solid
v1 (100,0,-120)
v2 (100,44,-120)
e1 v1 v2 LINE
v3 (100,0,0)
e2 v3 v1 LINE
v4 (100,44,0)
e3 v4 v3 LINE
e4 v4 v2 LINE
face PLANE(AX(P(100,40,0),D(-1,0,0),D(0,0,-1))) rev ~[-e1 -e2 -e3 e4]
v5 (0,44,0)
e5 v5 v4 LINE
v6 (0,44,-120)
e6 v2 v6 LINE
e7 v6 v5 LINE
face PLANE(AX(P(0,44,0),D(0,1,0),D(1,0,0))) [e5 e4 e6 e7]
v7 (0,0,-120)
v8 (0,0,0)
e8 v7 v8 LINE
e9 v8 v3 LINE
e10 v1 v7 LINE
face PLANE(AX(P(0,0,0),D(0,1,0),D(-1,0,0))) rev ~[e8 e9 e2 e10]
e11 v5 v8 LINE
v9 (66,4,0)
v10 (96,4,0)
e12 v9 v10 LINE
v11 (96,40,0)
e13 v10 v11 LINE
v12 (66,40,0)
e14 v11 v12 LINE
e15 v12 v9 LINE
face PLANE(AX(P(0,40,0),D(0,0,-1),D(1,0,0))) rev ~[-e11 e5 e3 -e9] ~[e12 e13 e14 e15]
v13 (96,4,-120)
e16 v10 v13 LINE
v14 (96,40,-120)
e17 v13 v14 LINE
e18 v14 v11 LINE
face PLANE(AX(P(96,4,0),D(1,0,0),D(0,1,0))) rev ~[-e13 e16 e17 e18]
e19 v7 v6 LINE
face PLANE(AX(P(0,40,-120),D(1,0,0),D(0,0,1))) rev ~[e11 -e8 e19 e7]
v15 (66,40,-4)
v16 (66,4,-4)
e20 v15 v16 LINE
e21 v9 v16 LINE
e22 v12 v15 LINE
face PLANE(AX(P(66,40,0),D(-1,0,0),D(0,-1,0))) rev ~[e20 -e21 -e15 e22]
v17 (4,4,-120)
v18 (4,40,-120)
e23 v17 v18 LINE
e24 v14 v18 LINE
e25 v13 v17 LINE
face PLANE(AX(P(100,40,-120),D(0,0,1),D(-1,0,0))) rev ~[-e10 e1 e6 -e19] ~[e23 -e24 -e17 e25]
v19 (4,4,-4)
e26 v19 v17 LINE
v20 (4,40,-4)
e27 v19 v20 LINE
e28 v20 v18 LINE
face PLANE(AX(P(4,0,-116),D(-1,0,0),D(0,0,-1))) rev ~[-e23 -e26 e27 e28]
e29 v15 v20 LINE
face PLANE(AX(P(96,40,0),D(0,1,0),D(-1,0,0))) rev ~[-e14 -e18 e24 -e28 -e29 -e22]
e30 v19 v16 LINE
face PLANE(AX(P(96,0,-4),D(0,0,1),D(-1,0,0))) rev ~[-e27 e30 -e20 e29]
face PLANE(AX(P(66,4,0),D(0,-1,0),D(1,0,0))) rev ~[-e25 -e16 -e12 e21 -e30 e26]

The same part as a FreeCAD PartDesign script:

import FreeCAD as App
import Part
import Sketcher
Q = App.Units.Quantity

doc = App.newDocument("Part")
body = doc.addObject("PartDesign::Body", "Body")

# Sketch on XZ plane
sketch1 = doc.addObject("Sketcher::SketchObject", "Sketch")
body.addObject(sketch1)
sketch1.AttachmentSupport = (doc.XZ_Plane, [""])
sketch1.MapMode = "FlatFace"
sketch1.addGeometry(Part.LineSegment(App.Vector(0, -120, 0), App.Vector(0, 0, 0)), False)
sketch1.addGeometry(Part.LineSegment(App.Vector(0, 0, 0), App.Vector(100, 0, 0)), False)
sketch1.addGeometry(Part.LineSegment(App.Vector(100, 0, 0), App.Vector(100, -120, 0)), False)
sketch1.addGeometry(Part.LineSegment(App.Vector(100, -120, 0), App.Vector(0, -120, 0)), False)
sketch1.addConstraint(Sketcher.Constraint("Coincident", 0, 2, 1, 1))
sketch1.addConstraint(Sketcher.Constraint("Coincident", 1, 2, 2, 1))
sketch1.addConstraint(Sketcher.Constraint("Coincident", 2, 2, 3, 1))
sketch1.addConstraint(Sketcher.Constraint("Coincident", 3, 2, 0, 1))
sketch1.addConstraint(Sketcher.Constraint("Vertical", 0))
sketch1.addConstraint(Sketcher.Constraint("Horizontal", 1))
sketch1.addConstraint(Sketcher.Constraint("Vertical", 2))
sketch1.addConstraint(Sketcher.Constraint("Horizontal", 3))
sketch1.addConstraint(Sketcher.Constraint("Coincident", 0, 2, -1, 1))
sketch1.addConstraint(Sketcher.Constraint("DistanceX", 1, 1, 1, 2, Q("100 mm")))
sketch1.addConstraint(Sketcher.Constraint("DistanceY", 0, 1, 0, 2, Q("120 mm")))
pad1 = doc.addObject("PartDesign::Pad", "Pad")
body.addObject(pad1)
pad1.Profile = sketch1
pad1.Length = 4
pad1.Reversed = True

# Sketch on XZ plane
sketch2 = doc.addObject("Sketcher::SketchObject", "Sketch001")
body.addObject(sketch2)
sketch2.AttachmentSupport = (doc.XZ_Plane, [""])
sketch2.MapMode = "FlatFace"
sketch2.addGeometry(Part.LineSegment(App.Vector(100, -120, 0), App.Vector(100, 0, 0)), False)
sketch2.addGeometry(Part.LineSegment(App.Vector(100, 0, 0), App.Vector(0, 0, 0)), False)
sketch2.addGeometry(Part.LineSegment(App.Vector(0, 0, 0), App.Vector(0, -120, 0)), False)
sketch2.addGeometry(Part.LineSegment(App.Vector(0, -120, 0), App.Vector(4, -120, 0)), False)
sketch2.addGeometry(Part.LineSegment(App.Vector(4, -120, 0), App.Vector(4, -4, 0)), False)
sketch2.addGeometry(Part.LineSegment(App.Vector(4, -4, 0), App.Vector(96, -4, 0)), False)
sketch2.addGeometry(Part.LineSegment(App.Vector(96, -4, 0), App.Vector(96, -120, 0)), False)
sketch2.addGeometry(Part.LineSegment(App.Vector(96, -120, 0), App.Vector(100, -120, 0)), False)
sketch2.addConstraint(Sketcher.Constraint("Coincident", 0, 2, 1, 1))
sketch2.addConstraint(Sketcher.Constraint("Coincident", 1, 2, 2, 1))
sketch2.addConstraint(Sketcher.Constraint("Coincident", 2, 2, 3, 1))
sketch2.addConstraint(Sketcher.Constraint("Coincident", 3, 2, 4, 1))
sketch2.addConstraint(Sketcher.Constraint("Coincident", 4, 2, 5, 1))
sketch2.addConstraint(Sketcher.Constraint("Coincident", 5, 2, 6, 1))
sketch2.addConstraint(Sketcher.Constraint("Coincident", 6, 2, 7, 1))
sketch2.addConstraint(Sketcher.Constraint("Coincident", 7, 2, 0, 1))
sketch2.addConstraint(Sketcher.Constraint("Vertical", 0))
sketch2.addConstraint(Sketcher.Constraint("Horizontal", 1))
sketch2.addConstraint(Sketcher.Constraint("Vertical", 2))
sketch2.addConstraint(Sketcher.Constraint("Horizontal", 3))
sketch2.addConstraint(Sketcher.Constraint("Vertical", 4))
sketch2.addConstraint(Sketcher.Constraint("Horizontal", 5))
sketch2.addConstraint(Sketcher.Constraint("Vertical", 6))
sketch2.addConstraint(Sketcher.Constraint("Horizontal", 7))
sketch2.addConstraint(Sketcher.Constraint("Coincident", 1, 2, -1, 1))
sketch2.addConstraint(Sketcher.Constraint("Horizontal", 3, 2, 6, 2))
sketch2.addConstraint(Sketcher.Constraint("Equal", 3, 7))
sketch2.addConstraint(Sketcher.Constraint("DistanceX", 3, 1, 3, 2, Q("4 mm")))
sketch2.addConstraint(Sketcher.Constraint("DistanceY", 4, 2, -1, 1, Q("4 mm")))
sketch2.addConstraint(Sketcher.Constraint("DistanceX", 1, 2, 1, 1, Q("100 mm")))
sketch2.addConstraint(Sketcher.Constraint("DistanceY", 0, 1, 0, 2, Q("120 mm")))
pad2 = doc.addObject("PartDesign::Pad", "Pad001")
body.addObject(pad2)
pad2.Profile = sketch2
pad2.Length = 40
pad2.Reversed = True

# Sketch on XZ plane
sketch3 = doc.addObject("Sketcher::SketchObject", "Sketch002")
body.addObject(sketch3)
sketch3.AttachmentSupport = (doc.XZ_Plane, [""])
sketch3.MapMode = "FlatFace"
sketch3.AttachmentOffset = App.Placement(App.Vector(0, 0, -40), App.Rotation())
sketch3.addGeometry(Part.LineSegment(App.Vector(100, 0, 0), App.Vector(100, -120, 0)), False)
sketch3.addGeometry(Part.LineSegment(App.Vector(100, -120, 0), App.Vector(0, -120, 0)), False)
sketch3.addGeometry(Part.LineSegment(App.Vector(0, -120, 0), App.Vector(0, 0, 0)), False)
sketch3.addGeometry(Part.LineSegment(App.Vector(0, 0, 0), App.Vector(100, 0, 0)), False)
sketch3.addConstraint(Sketcher.Constraint("Coincident", 0, 2, 1, 1))
sketch3.addConstraint(Sketcher.Constraint("Coincident", 1, 2, 2, 1))
sketch3.addConstraint(Sketcher.Constraint("Coincident", 2, 2, 3, 1))
sketch3.addConstraint(Sketcher.Constraint("Coincident", 3, 2, 0, 1))
sketch3.addConstraint(Sketcher.Constraint("Vertical", 0))
sketch3.addConstraint(Sketcher.Constraint("Horizontal", 1))
sketch3.addConstraint(Sketcher.Constraint("Vertical", 2))
sketch3.addConstraint(Sketcher.Constraint("Horizontal", 3))
sketch3.addConstraint(Sketcher.Constraint("Coincident", 2, 2, -1, 1))
sketch3.addConstraint(Sketcher.Constraint("DistanceX", 1, 2, 1, 1, Q("100 mm")))
sketch3.addConstraint(Sketcher.Constraint("DistanceY", 0, 2, 0, 1, Q("120 mm")))
pad3 = doc.addObject("PartDesign::Pad", "Pad002")
body.addObject(pad3)
pad3.Profile = sketch3
pad3.Length = 4
pad3.Reversed = True

# Sketch on XY plane
sketch4 = doc.addObject("Sketcher::SketchObject", "Sketch003")
body.addObject(sketch4)
sketch4.AttachmentSupport = (doc.XY_Plane, [""])
sketch4.MapMode = "FlatFace"
sketch4.addGeometry(Part.LineSegment(App.Vector(96, 4, 0), App.Vector(96, 40, 0)), False)
sketch4.addGeometry(Part.LineSegment(App.Vector(96, 40, 0), App.Vector(66, 40, 0)), False)
sketch4.addGeometry(Part.LineSegment(App.Vector(66, 40, 0), App.Vector(66, 4, 0)), False)
sketch4.addGeometry(Part.LineSegment(App.Vector(66, 4, 0), App.Vector(96, 4, 0)), False)
sketch4.addConstraint(Sketcher.Constraint("Coincident", 0, 2, 1, 1))
sketch4.addConstraint(Sketcher.Constraint("Coincident", 1, 2, 2, 1))
sketch4.addConstraint(Sketcher.Constraint("Coincident", 2, 2, 3, 1))
sketch4.addConstraint(Sketcher.Constraint("Coincident", 3, 2, 0, 1))
sketch4.addConstraint(Sketcher.Constraint("Vertical", 0))
sketch4.addConstraint(Sketcher.Constraint("Horizontal", 1))
sketch4.addConstraint(Sketcher.Constraint("Vertical", 2))
sketch4.addConstraint(Sketcher.Constraint("Horizontal", 3))
sketch4.addConstraint(Sketcher.Constraint("DistanceX", 1, 2, 1, 1, Q("30 mm")))
sketch4.addConstraint(Sketcher.Constraint("DistanceY", 0, 1, 0, 2, Q("36 mm")))
sketch4.addConstraint(Sketcher.Constraint("DistanceX", -1, 1, 0, 2, Q("96 mm")))
sketch4.addConstraint(Sketcher.Constraint("DistanceY", -1, 1, 0, 2, Q("40 mm")))
pocket1 = doc.addObject("PartDesign::Pocket", "Pocket")
body.addObject(pocket1)
pocket1.Profile = sketch4
pocket1.Length = 4

doc.recompute()
